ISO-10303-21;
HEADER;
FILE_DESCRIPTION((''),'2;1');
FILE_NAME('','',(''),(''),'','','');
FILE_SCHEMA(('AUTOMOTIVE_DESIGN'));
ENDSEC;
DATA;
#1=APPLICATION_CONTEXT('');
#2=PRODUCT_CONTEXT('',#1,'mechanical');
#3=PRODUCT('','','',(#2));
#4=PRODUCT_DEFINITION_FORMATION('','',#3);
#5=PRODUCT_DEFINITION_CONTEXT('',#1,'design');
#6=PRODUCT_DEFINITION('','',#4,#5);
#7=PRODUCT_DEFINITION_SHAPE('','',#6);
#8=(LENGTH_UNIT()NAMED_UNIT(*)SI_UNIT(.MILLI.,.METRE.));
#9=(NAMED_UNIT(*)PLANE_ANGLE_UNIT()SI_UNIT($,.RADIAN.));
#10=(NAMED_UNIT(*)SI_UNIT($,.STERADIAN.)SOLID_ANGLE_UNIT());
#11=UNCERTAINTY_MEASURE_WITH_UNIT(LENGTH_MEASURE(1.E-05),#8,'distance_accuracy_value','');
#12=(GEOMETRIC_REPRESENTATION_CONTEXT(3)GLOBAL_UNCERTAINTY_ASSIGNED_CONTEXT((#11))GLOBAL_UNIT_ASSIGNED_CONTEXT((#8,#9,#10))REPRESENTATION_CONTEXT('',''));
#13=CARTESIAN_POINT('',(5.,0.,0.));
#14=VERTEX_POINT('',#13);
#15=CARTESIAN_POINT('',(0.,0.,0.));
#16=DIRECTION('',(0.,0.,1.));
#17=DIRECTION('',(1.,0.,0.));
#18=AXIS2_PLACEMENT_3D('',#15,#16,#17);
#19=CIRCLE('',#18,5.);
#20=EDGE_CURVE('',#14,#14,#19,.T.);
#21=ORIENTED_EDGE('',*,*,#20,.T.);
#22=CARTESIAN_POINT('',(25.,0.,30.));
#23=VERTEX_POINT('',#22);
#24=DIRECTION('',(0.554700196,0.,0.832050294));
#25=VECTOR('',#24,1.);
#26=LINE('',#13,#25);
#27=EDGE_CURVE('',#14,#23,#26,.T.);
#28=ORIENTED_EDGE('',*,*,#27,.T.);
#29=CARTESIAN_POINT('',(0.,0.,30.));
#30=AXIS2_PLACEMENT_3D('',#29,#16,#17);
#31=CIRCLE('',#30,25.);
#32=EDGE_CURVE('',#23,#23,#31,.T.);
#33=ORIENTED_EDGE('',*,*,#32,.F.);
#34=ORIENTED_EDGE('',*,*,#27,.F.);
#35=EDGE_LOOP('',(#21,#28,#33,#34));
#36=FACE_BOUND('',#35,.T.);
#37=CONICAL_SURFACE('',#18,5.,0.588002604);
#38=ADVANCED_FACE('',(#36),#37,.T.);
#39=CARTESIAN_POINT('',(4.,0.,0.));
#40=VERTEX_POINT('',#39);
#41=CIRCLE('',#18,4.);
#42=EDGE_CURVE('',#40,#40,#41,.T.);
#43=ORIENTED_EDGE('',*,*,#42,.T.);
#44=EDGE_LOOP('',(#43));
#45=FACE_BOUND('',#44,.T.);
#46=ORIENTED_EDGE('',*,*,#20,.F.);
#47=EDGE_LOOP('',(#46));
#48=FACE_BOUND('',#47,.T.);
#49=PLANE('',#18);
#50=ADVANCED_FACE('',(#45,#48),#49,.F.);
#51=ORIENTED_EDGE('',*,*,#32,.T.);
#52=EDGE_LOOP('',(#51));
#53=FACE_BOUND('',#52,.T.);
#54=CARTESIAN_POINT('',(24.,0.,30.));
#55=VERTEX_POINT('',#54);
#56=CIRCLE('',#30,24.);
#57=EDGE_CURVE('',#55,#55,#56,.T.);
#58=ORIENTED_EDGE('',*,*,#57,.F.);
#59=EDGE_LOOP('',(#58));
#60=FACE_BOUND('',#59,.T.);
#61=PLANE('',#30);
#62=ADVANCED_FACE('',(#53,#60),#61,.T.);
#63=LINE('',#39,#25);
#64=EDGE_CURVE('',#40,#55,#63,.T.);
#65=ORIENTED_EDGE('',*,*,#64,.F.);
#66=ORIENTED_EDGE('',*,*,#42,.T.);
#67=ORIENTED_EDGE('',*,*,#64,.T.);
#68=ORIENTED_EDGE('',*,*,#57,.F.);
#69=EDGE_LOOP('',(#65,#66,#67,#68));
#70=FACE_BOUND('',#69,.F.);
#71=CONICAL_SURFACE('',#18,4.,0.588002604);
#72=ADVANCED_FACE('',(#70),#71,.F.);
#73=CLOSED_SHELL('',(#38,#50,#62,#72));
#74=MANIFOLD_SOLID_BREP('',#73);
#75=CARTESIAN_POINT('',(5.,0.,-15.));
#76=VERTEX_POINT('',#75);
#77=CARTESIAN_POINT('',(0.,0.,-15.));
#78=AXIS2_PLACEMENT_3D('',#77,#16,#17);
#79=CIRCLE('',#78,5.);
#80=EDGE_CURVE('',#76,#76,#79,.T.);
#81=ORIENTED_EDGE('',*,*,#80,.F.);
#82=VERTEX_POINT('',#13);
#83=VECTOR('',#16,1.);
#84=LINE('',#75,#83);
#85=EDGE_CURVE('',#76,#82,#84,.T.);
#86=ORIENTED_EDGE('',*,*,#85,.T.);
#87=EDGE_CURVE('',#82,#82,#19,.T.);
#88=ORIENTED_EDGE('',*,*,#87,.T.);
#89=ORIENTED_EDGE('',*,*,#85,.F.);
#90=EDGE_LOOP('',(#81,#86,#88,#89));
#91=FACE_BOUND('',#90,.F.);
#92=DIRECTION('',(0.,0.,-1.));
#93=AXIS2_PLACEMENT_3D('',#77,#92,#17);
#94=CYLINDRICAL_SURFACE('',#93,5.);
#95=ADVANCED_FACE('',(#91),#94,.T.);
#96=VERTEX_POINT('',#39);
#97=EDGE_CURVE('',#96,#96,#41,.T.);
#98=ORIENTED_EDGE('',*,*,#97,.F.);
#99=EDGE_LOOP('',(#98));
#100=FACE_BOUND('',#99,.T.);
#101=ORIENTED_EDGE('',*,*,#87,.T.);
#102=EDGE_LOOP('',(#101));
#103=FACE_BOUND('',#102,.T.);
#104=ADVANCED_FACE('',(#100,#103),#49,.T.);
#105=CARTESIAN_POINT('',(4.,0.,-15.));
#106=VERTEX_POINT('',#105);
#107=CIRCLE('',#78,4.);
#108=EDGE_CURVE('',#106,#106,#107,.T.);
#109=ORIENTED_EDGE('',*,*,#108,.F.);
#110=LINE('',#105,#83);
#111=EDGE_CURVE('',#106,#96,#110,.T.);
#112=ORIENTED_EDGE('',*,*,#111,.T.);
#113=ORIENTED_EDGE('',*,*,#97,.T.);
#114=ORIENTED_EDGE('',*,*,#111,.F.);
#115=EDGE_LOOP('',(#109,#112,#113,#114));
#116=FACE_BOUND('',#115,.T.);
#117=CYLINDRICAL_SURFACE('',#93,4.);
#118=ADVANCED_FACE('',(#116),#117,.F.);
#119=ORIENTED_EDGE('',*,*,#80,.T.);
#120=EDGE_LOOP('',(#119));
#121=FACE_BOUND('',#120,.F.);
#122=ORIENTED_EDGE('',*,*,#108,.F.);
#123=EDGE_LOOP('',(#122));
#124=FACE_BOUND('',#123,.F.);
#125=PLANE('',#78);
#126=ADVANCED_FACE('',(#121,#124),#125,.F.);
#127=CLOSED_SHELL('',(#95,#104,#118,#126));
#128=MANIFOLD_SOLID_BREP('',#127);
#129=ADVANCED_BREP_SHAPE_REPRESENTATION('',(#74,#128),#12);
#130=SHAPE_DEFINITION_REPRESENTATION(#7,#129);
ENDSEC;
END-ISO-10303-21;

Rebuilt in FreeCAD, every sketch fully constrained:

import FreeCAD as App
import Part
import Sketcher
Q = App.Units.Quantity

doc = App.newDocument("Part")
body = doc.addObject("PartDesign::Body", "Body")

sketch1 = body.newObject("Sketcher::SketchObject", "Sketch")
sketch1.AttachmentSupport = (doc.getObject("XZ_Plane"), [""])
sketch1.MapMode = "FlatFace"
sketch1.addGeometry([
    Part.LineSegment(App.Vector(0, 0, 0), App.Vector(4, 0, 0)),
    Part.LineSegment(App.Vector(4, 0, 0), App.Vector(24, 30, 0)),
    Part.LineSegment(App.Vector(24, 30, 0), App.Vector(0, 30, 0)),
    Part.LineSegment(App.Vector(0, 30, 0), App.Vector(0, 0, 0)),
], False)
sketch1.addConstraint([
    Sketcher.Constraint("Coincident", 0, 2, 1, 1),
    Sketcher.Constraint("Coincident", 1, 2, 2, 1),
    Sketcher.Constraint("Coincident", 2, 2, 3, 1),
    Sketcher.Constraint("Coincident", 3, 2, 0, 1),
    Sketcher.Constraint("Horizontal", 0),
    Sketcher.Constraint("Horizontal", 2),
    Sketcher.Constraint("Vertical", 3),
    Sketcher.Constraint("Coincident", 3, 2, -1, 1),
    Sketcher.Constraint("DistanceX", 0, 1, 0, 2, Q("4 mm")),
    Sketcher.Constraint("DistanceX", 2, 2, 2, 1, Q("24 mm")),
    Sketcher.Constraint("DistanceY", 3, 2, 3, 1, Q("30 mm")),
])
revolution = body.newObject("PartDesign::Revolution", "Revolution")
revolution.Profile = sketch1
revolution.ReferenceAxis = (sketch1, ["V_Axis"])
revolution.Angle = 360
body2 = doc.addObject("PartDesign::Body", "Body001")

sketch2 = body2.newObject("Sketcher::SketchObject", "Sketch001")
sketch2.AttachmentSupport = (doc.getObject("XZ_Plane001"), [""])
sketch2.MapMode = "FlatFace"
sketch2.addGeometry([
    Part.LineSegment(App.Vector(0, 0, 0), App.Vector(5, 0, 0)),
    Part.LineSegment(App.Vector(5, 0, 0), App.Vector(25, 30, 0)),
    Part.LineSegment(App.Vector(25, 30, 0), App.Vector(0, 30, 0)),
    Part.LineSegment(App.Vector(0, 30, 0), App.Vector(0, 0, 0)),
], False)
sketch2.addConstraint([
    Sketcher.Constraint("Coincident", 0, 2, 1, 1),
    Sketcher.Constraint("Coincident", 1, 2, 2, 1),
    Sketcher.Constraint("Coincident", 2, 2, 3, 1),
    Sketcher.Constraint("Coincident", 3, 2, 0, 1),
    Sketcher.Constraint("Horizontal", 0),
    Sketcher.Constraint("Horizontal", 2),
    Sketcher.Constraint("Vertical", 3),
    Sketcher.Constraint("Coincident", 3, 2, -1, 1),
    Sketcher.Constraint("DistanceX", 0, 1, 0, 2, Q("5 mm")),
    Sketcher.Constraint("DistanceX", 2, 2, 2, 1, Q("25 mm")),
    Sketcher.Constraint("DistanceY", 3, 2, 3, 1, Q("30 mm")),
])
revolution2 = body2.newObject("PartDesign::Revolution", "Revolution001")
revolution2.Profile = sketch2
revolution2.ReferenceAxis = (sketch2, ["V_Axis"])
revolution2.Angle = 360
doc.recompute()

boolean = body2.newObject("PartDesign::Boolean", "Boolean")
boolean.Type = "Cut"
boolean.addObjects([body])
body3 = doc.addObject("PartDesign::Body", "Body002")

sketch3 = body3.newObject("Sketcher::SketchObject", "Sketch002")
sketch3.AttachmentSupport = (doc.getObject("XY_Plane002"), [""])
sketch3.MapMode = "FlatFace"
sketch3.AttachmentOffset = App.Placement(App.Vector(0, 0, -15), App.Rotation())
sketch3.addGeometry(Part.Circle(App.Vector(0, 0, 0), App.Vector(0, 0, 1), 4), False)
sketch3.addConstraint([
    Sketcher.Constraint("Coincident", 0, 3, -1, 1),
    Sketcher.Constraint("Diameter", 0, Q("8 mm")),
])
pad1 = body3.newObject("PartDesign::Pad", "Pad")
pad1.Profile = sketch3
pad1.Length = 15
body4 = doc.addObject("PartDesign::Body", "Body003")

sketch4 = body4.newObject("Sketcher::SketchObject", "Sketch003")
sketch4.AttachmentSupport = (doc.getObject("XY_Plane003"), [""])
sketch4.MapMode = "FlatFace"
sketch4.AttachmentOffset = App.Placement(App.Vector(0, 0, -15), App.Rotation())
sketch4.addGeometry(Part.Circle(App.Vector(0, 0, 0), App.Vector(0, 0, 1), 5), False)
sketch4.addConstraint([
    Sketcher.Constraint("Coincident", 0, 3, -1, 1),
    Sketcher.Constraint("Diameter", 0, Q("10 mm")),
])
pad2 = body4.newObject("PartDesign::Pad", "Pad001")
pad2.Profile = sketch4
pad2.Length = 15
doc.recompute()

boolean2 = body4.newObject("PartDesign::Boolean", "Boolean001")
boolean2.Type = "Cut"
boolean2.addObjects([body3])

doc.recompute()
